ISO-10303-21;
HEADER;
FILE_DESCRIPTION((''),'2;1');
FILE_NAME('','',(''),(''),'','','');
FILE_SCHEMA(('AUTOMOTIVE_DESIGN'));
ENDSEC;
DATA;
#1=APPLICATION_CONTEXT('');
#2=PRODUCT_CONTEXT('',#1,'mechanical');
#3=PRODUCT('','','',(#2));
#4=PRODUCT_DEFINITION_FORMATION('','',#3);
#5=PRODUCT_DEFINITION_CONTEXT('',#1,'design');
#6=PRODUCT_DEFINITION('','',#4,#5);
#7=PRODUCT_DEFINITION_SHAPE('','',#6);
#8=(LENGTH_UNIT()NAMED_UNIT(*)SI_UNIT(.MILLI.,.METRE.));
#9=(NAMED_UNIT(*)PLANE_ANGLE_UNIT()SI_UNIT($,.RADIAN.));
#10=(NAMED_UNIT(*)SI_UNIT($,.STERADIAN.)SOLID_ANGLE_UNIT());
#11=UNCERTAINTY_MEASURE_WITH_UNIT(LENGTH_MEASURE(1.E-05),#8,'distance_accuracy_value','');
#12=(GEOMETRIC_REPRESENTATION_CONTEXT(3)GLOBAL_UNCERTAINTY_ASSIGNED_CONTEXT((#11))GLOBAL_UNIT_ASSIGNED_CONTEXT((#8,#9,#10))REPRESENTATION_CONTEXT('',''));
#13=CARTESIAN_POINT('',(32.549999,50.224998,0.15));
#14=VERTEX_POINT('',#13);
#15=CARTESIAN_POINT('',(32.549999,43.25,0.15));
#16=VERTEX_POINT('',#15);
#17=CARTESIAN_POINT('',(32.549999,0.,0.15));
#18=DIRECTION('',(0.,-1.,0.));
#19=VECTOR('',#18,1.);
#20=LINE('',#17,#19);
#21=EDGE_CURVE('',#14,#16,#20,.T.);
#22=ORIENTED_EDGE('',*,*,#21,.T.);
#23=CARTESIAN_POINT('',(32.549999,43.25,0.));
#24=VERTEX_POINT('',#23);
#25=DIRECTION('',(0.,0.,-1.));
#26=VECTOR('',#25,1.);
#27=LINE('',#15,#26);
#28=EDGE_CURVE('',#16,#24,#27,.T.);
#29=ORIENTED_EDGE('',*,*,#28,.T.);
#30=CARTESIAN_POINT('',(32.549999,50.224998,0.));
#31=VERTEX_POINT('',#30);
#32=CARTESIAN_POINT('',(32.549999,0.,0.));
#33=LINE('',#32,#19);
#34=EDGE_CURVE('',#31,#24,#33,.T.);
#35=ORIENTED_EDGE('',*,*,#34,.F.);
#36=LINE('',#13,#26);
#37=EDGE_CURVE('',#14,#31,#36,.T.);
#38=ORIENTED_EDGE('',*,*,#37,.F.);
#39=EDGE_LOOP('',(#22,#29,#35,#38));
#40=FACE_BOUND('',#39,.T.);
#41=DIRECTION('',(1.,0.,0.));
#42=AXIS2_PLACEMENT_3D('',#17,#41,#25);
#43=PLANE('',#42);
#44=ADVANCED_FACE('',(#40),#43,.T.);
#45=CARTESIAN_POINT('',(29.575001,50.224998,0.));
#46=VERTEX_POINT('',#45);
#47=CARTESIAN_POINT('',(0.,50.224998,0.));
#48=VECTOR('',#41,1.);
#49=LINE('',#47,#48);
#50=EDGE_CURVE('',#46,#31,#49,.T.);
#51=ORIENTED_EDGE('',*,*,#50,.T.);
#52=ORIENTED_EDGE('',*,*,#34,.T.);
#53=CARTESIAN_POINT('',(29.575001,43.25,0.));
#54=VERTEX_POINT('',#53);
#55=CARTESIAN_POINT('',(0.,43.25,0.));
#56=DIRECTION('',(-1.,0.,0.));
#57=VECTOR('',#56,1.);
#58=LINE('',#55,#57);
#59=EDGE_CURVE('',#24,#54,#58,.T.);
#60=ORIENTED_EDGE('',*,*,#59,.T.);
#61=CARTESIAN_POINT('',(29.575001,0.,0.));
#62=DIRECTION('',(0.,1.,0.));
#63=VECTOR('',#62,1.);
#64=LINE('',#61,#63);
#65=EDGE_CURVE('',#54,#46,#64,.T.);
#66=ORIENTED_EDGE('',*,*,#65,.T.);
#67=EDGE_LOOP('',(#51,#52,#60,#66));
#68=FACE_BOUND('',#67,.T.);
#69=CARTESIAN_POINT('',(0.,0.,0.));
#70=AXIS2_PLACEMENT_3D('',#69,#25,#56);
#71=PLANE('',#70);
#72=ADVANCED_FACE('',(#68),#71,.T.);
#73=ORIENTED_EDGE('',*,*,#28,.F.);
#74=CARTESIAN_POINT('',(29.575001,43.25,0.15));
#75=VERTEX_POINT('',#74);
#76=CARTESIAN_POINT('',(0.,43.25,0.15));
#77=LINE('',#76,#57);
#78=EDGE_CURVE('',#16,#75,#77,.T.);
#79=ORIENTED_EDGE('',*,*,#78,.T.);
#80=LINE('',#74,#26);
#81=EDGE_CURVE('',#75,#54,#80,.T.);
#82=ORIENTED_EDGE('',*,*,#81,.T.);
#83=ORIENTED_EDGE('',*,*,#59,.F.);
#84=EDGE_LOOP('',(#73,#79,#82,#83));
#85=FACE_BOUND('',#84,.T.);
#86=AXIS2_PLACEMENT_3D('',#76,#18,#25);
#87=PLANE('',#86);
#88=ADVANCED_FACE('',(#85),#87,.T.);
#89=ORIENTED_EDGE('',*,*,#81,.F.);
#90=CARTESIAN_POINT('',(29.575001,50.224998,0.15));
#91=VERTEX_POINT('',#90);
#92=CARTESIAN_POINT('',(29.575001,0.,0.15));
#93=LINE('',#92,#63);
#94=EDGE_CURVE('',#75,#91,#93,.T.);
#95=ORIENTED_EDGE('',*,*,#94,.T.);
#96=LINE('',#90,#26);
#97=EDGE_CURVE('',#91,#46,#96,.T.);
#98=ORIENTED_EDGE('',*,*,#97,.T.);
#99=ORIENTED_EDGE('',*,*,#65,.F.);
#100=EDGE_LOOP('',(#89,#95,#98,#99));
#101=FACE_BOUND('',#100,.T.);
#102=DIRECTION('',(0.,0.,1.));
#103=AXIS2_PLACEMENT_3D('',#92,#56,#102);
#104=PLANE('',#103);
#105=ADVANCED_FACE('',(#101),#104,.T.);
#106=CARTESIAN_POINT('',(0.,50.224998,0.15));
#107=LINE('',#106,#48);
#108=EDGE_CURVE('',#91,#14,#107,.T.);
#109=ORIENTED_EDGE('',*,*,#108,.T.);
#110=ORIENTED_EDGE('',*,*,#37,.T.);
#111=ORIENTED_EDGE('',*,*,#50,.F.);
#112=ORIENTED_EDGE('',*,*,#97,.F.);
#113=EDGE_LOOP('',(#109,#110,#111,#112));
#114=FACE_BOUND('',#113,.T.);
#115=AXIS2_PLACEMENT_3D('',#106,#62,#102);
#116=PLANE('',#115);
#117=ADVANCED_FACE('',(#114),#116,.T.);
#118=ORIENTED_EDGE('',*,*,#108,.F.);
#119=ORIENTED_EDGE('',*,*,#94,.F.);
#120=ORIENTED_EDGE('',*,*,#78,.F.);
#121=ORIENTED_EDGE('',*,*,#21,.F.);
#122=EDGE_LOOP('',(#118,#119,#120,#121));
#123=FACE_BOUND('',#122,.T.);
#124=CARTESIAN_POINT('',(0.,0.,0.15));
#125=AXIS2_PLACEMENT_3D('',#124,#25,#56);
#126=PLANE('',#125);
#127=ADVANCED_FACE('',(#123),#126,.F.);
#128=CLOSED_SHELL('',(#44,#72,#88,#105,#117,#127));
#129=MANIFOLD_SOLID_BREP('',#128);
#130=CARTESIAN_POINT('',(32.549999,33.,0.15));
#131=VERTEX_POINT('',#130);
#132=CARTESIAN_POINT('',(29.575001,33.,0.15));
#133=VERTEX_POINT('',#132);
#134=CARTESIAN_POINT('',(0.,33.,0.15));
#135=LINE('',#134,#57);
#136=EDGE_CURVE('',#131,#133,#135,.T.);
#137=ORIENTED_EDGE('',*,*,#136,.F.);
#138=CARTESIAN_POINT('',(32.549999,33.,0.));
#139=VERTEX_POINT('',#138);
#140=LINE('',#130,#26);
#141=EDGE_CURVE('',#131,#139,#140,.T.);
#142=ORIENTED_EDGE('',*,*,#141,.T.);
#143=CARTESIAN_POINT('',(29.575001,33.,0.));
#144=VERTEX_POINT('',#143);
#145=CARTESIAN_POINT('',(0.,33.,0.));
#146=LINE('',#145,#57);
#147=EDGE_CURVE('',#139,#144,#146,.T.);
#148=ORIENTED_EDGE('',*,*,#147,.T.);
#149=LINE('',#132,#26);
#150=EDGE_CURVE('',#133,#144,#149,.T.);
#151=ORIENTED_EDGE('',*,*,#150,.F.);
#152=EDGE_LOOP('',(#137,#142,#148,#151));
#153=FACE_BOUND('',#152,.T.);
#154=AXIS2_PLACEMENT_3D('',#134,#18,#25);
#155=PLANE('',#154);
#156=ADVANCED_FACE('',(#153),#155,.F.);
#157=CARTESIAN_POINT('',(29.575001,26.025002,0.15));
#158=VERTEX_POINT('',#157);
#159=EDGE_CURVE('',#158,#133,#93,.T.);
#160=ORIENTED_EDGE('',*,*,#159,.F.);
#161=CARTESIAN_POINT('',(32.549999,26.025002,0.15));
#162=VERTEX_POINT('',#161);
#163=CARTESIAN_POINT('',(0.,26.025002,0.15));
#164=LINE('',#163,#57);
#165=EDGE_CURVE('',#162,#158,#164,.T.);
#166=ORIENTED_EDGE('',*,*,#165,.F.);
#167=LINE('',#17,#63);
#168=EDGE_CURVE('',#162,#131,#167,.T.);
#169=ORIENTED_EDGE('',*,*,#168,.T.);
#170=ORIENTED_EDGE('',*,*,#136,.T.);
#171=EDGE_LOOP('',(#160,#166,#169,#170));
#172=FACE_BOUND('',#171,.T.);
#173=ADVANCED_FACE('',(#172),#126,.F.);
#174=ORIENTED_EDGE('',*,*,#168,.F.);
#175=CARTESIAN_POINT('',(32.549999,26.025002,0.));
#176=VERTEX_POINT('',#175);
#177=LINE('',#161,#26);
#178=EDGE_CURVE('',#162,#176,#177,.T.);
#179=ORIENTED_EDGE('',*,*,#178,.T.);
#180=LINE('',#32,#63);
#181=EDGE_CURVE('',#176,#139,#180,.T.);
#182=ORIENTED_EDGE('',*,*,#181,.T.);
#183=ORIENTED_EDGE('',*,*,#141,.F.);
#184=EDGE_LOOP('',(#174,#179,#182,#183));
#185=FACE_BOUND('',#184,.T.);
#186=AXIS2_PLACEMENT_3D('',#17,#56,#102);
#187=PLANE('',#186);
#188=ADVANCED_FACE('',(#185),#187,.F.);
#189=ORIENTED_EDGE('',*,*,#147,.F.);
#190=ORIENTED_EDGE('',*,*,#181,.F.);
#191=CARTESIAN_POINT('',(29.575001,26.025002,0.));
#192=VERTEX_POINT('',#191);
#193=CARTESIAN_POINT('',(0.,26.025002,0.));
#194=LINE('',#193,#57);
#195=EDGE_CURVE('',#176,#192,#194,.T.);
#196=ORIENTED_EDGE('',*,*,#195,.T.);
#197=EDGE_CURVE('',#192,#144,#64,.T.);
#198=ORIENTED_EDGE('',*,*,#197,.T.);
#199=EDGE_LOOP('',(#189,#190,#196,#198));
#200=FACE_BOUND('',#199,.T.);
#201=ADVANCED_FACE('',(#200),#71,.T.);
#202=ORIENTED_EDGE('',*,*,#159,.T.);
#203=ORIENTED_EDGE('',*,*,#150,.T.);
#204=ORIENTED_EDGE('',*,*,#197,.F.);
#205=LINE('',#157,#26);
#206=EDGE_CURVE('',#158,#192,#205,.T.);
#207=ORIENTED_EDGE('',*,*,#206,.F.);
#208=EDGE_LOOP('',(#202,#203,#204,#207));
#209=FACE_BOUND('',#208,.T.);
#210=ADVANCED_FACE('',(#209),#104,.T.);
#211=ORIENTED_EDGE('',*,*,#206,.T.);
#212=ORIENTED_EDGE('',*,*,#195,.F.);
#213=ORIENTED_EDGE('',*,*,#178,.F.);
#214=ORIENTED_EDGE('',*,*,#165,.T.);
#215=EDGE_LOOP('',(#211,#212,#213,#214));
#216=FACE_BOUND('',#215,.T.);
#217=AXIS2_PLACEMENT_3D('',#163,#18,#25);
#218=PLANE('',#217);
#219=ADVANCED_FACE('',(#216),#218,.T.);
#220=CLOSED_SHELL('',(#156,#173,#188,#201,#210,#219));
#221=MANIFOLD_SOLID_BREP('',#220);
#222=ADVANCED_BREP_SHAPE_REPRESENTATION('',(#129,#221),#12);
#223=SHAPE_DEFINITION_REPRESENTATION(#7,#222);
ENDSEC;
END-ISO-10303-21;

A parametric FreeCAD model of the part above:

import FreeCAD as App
import Part
import Sketcher
from FreeCAD import Vector
Q = App.Units.Quantity

doc = App.newDocument("Part")
body = doc.addObject("PartDesign::Body", "Body")

sketch1 = body.newObject("Sketcher::SketchObject", "Sketch")
sketch1.AttachmentSupport = (doc.getObject("XY_Plane"), [""])
sketch1.MapMode = "FlatFace"
sketch1.addGeometry([
    Part.LineSegment(Vector(32.5, 50.2, 0), Vector(32.5, 43.2, 0)),
    Part.LineSegment(Vector(32.5, 43.2, 0), Vector(29.6, 43.2, 0)),
    Part.LineSegment(Vector(29.6, 43.2, 0), Vector(29.6, 50.2, 0)),
    Part.LineSegment(Vector(29.6, 50.2, 0), Vector(32.5, 50.2, 0)),
], False)
sketch1.addConstraint([
    Sketcher.Constraint("Coincident", 0, 2, 1, 1),
    Sketcher.Constraint("Coincident", 1, 2, 2, 1),
    Sketcher.Constraint("Coincident", 2, 2, 3, 1),
    Sketcher.Constraint("Coincident", 3, 2, 0, 1),
    Sketcher.Constraint("Vertical", 0),
    Sketcher.Constraint("Horizontal", 1),
    Sketcher.Constraint("Vertical", 2),
    Sketcher.Constraint("Horizontal", 3),
    Sketcher.Constraint("DistanceX", 1, 2, 1, 1, Q("2.974998 mm")),
    Sketcher.Constraint("DistanceY", 0, 2, 0, 1, Q("6.974998 mm")),
    Sketcher.Constraint("DistanceX", -1, 1, 0, 2, Q("32.549999 mm")),
    Sketcher.Constraint("DistanceY", -1, 1, 0, 2, Q("43.25 mm")),
])
pad1 = body.newObject("PartDesign::Pad", "Pad")
pad1.Profile = sketch1
pad1.Length = 0.15
body2 = doc.addObject("PartDesign::Body", "Body001")

sketch2 = body2.newObject("Sketcher::SketchObject", "Sketch001")
sketch2.AttachmentSupport = (doc.getObject("XY_Plane001"), [""])
sketch2.MapMode = "FlatFace"
sketch2.addGeometry([
    Part.LineSegment(Vector(32.5, 33, 0), Vector(32.5, 26, 0)),
    Part.LineSegment(Vector(32.5, 26, 0), Vector(29.6, 26, 0)),
    Part.LineSegment(Vector(29.6, 26, 0), Vector(29.6, 33, 0)),
    Part.LineSegment(Vector(29.6, 33, 0), Vector(32.5, 33, 0)),
], False)
sketch2.addConstraint([
    Sketcher.Constraint("Coincident", 0, 2, 1, 1),
    Sketcher.Constraint("Coincident", 1, 2, 2, 1),
    Sketcher.Constraint("Coincident", 2, 2, 3, 1),
    Sketcher.Constraint("Coincident", 3, 2, 0, 1),
    Sketcher.Constraint("Vertical", 0),
    Sketcher.Constraint("Horizontal", 1),
    Sketcher.Constraint("Vertical", 2),
    Sketcher.Constraint("Horizontal", 3),
    Sketcher.Constraint("DistanceY", -1, 1, 2, 2, Q("33 mm")),
    Sketcher.Constraint("DistanceX", 1, 2, 1, 1, Q("2.974998 mm")),
    Sketcher.Constraint("DistanceY", 0, 2, 0, 1, Q("6.974998 mm")),
    Sketcher.Constraint("DistanceX", -1, 1, 0, 2, Q("32.549999 mm")),
])
pad2 = body2.newObject("PartDesign::Pad", "Pad001")
pad2.Profile = sketch2
pad2.Length = 0.15

doc.recompute()
